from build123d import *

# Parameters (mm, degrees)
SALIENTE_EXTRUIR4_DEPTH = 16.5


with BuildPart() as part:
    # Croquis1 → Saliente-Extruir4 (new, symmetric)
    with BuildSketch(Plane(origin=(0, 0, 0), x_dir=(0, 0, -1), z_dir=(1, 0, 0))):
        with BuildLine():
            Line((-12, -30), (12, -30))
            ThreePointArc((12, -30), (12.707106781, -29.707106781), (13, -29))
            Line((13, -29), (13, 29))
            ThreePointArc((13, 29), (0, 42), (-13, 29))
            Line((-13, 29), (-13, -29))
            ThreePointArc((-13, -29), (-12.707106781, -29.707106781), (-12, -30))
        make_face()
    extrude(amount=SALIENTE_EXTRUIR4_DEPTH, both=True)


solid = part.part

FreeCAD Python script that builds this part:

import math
import FreeCAD as App
import Part
import Sketcher
from FreeCAD import Vector
Q = App.Units.Quantity

doc = App.newDocument("Part")
params = doc.addObject("Spreadsheet::Sheet", "Params")
for row, (alias, value) in enumerate([
    ("sketch1_radius", "1 mm"),
    ("sketch1_radius2", "13 mm"),
    ("sketch1_width", "58 mm"),
    ("pad1_length", "33 mm"),
], start=1):
    params.set(f"A{row}", alias)
    params.set(f"B{row}", "=" + value)
    params.setAlias(f"B{row}", alias)

body = doc.addObject("PartDesign::Body", "Body")

sketch1 = body.newObject("Sketcher::SketchObject", "Sketch")
sketch1.AttachmentSupport = (doc.getObject("YZ_Plane"), [""])
sketch1.MapMode = "FlatFace"
sketch1.addGeometry(Part.LineSegment(Vector(-30, 12, 0), Vector(-30, -12, 0)), False)
sketch1.addGeometry(Part.ArcOfCircle(Part.Circle(Vector(-29, -12, 0), Vector(0, 0, 1), 1), math.radians(-180), math.radians(-90)), False)
sketch1.addGeometry(Part.LineSegment(Vector(-29, -13, 0), Vector(29, -13, 0)), False)
sketch1.addGeometry(Part.ArcOfCircle(Part.Circle(Vector(29, 0, 0), Vector(0, 0, 1), 13), math.radians(-90), math.radians(90)), False)
sketch1.addGeometry(Part.LineSegment(Vector(29, 13, 0), Vector(-29, 13, 0)), False)
sketch1.addGeometry(Part.ArcOfCircle(Part.Circle(Vector(-29, 12, 0), Vector(0, 0, 1), 1), math.radians(90), math.radians(180)), False)
sketch1.addConstraint(Sketcher.Constraint("Tangent", 0, 2, 1, 1))
sketch1.addConstraint(Sketcher.Constraint("Tangent", 1, 2, 2, 1))
sketch1.addConstraint(Sketcher.Constraint("Tangent", 2, 2, 3, 1))
sketch1.addConstraint(Sketcher.Constraint("Tangent", 3, 2, 4, 1))
sketch1.addConstraint(Sketcher.Constraint("Tangent", 4, 2, 5, 1))
sketch1.addConstraint(Sketcher.Constraint("Tangent", 5, 2, 0, 1))
sketch1.addConstraint(Sketcher.Constraint("Vertical", 0))
sketch1.addConstraint(Sketcher.Constraint("Horizontal", 2))
sketch1.addConstraint(Sketcher.Constraint("Horizontal", 4))
sketch1.addConstraint(Sketcher.Constraint("Equal", 1, 5))
sketch1.addConstraint(Sketcher.Constraint("Symmetric", 1, 2, 3, 2, -1, 1))
sketch1.addConstraint(Sketcher.Constraint("Radius", 1, Q("1 mm")))
sketch1.addConstraint(Sketcher.Constraint("Radius", 3, Q("13 mm")))
sketch1.addConstraint(Sketcher.Constraint("DistanceX", 2, 1, 2, 2, Q("58 mm")))
sketch1.setExpression("Constraints[11]", "Params.sketch1_radius")
sketch1.setExpression("Constraints[12]", "Params.sketch1_radius2")
sketch1.setExpression("Constraints[13]", "Params.sketch1_width")
pad1 = body.newObject("PartDesign::Pad", "Pad")
pad1.Profile = sketch1
pad1.setExpression("Length", "Params.pad1_length")
pad1.Midplane = True

doc.recompute()
